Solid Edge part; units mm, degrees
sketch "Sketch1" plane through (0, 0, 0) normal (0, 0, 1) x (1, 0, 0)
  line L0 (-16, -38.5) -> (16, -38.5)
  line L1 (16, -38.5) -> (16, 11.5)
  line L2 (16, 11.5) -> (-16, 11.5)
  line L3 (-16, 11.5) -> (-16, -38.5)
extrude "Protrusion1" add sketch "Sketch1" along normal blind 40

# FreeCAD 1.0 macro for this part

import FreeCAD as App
import Part
import Sketcher

V = App.Vector
Q = App.Units.Quantity


def add_polygon(sketch, points):
    """Adds a closed chain of lines whose ends are joined by coincident constraints."""
    first, n = sketch.GeometryCount, len(points)
    for a, b in zip(points, points[1:] + points[:1]):
        sketch.addGeometry(Part.LineSegment(App.Vector(*a, 0), App.Vector(*b, 0)), False)
    for i in range(n):
        sketch.addConstraint(Sketcher.Constraint("Coincident", first + i, 2, first + (i + 1) % n, 1))

doc = App.newDocument("Part")
params = doc.addObject("Spreadsheet::Sheet", "Params")
for row, (alias, value) in enumerate([
    ("sketch1_width", "32 mm"),
    ("sketch1_height", "50 mm"),
    ("pad1_length", "40 mm"),
], start=1):
    params.set(f"A{row}", alias)
    params.set(f"B{row}", "=" + value)
    params.setAlias(f"B{row}", alias)

body = doc.addObject("PartDesign::Body", "Body")

# Sketch on XY plane
sketch1 = doc.addObject("Sketcher::SketchObject", "Sketch")
body.addObject(sketch1)
sketch1.AttachmentSupport = (doc.XY_Plane, [""])
sketch1.MapMode = "FlatFace"
add_polygon(sketch1, [(-16, 12), (-16, -38), (16, -38), (16, 12)])  # lines 0-3
sketch1.addConstraint([
    Sketcher.Constraint("Vertical", 0),
    Sketcher.Constraint("Horizontal", 1),
    Sketcher.Constraint("Vertical", 2),
    Sketcher.Constraint("Horizontal", 3),
    Sketcher.Constraint("DistanceX", 1, 1, 1, 2, Q("32 mm")),
    Sketcher.Constraint("DistanceY", 0, 2, 0, 1, Q("50 mm")),
    Sketcher.Constraint("DistanceX", 0, 2, -1, 1, Q("16 mm")),
    Sketcher.Constraint("DistanceY", 0, 2, -1, 1, Q("38.5 mm")),
])
sketch1.setExpression("Constraints[8]", "Params.sketch1_width")
sketch1.setExpression("Constraints[9]", "Params.sketch1_height")
pad1 = doc.addObject("PartDesign::Pad", "Pad")
body.addObject(pad1)
pad1.Profile = sketch1
pad1.setExpression("Length", "Params.pad1_length")

doc.recompute()
